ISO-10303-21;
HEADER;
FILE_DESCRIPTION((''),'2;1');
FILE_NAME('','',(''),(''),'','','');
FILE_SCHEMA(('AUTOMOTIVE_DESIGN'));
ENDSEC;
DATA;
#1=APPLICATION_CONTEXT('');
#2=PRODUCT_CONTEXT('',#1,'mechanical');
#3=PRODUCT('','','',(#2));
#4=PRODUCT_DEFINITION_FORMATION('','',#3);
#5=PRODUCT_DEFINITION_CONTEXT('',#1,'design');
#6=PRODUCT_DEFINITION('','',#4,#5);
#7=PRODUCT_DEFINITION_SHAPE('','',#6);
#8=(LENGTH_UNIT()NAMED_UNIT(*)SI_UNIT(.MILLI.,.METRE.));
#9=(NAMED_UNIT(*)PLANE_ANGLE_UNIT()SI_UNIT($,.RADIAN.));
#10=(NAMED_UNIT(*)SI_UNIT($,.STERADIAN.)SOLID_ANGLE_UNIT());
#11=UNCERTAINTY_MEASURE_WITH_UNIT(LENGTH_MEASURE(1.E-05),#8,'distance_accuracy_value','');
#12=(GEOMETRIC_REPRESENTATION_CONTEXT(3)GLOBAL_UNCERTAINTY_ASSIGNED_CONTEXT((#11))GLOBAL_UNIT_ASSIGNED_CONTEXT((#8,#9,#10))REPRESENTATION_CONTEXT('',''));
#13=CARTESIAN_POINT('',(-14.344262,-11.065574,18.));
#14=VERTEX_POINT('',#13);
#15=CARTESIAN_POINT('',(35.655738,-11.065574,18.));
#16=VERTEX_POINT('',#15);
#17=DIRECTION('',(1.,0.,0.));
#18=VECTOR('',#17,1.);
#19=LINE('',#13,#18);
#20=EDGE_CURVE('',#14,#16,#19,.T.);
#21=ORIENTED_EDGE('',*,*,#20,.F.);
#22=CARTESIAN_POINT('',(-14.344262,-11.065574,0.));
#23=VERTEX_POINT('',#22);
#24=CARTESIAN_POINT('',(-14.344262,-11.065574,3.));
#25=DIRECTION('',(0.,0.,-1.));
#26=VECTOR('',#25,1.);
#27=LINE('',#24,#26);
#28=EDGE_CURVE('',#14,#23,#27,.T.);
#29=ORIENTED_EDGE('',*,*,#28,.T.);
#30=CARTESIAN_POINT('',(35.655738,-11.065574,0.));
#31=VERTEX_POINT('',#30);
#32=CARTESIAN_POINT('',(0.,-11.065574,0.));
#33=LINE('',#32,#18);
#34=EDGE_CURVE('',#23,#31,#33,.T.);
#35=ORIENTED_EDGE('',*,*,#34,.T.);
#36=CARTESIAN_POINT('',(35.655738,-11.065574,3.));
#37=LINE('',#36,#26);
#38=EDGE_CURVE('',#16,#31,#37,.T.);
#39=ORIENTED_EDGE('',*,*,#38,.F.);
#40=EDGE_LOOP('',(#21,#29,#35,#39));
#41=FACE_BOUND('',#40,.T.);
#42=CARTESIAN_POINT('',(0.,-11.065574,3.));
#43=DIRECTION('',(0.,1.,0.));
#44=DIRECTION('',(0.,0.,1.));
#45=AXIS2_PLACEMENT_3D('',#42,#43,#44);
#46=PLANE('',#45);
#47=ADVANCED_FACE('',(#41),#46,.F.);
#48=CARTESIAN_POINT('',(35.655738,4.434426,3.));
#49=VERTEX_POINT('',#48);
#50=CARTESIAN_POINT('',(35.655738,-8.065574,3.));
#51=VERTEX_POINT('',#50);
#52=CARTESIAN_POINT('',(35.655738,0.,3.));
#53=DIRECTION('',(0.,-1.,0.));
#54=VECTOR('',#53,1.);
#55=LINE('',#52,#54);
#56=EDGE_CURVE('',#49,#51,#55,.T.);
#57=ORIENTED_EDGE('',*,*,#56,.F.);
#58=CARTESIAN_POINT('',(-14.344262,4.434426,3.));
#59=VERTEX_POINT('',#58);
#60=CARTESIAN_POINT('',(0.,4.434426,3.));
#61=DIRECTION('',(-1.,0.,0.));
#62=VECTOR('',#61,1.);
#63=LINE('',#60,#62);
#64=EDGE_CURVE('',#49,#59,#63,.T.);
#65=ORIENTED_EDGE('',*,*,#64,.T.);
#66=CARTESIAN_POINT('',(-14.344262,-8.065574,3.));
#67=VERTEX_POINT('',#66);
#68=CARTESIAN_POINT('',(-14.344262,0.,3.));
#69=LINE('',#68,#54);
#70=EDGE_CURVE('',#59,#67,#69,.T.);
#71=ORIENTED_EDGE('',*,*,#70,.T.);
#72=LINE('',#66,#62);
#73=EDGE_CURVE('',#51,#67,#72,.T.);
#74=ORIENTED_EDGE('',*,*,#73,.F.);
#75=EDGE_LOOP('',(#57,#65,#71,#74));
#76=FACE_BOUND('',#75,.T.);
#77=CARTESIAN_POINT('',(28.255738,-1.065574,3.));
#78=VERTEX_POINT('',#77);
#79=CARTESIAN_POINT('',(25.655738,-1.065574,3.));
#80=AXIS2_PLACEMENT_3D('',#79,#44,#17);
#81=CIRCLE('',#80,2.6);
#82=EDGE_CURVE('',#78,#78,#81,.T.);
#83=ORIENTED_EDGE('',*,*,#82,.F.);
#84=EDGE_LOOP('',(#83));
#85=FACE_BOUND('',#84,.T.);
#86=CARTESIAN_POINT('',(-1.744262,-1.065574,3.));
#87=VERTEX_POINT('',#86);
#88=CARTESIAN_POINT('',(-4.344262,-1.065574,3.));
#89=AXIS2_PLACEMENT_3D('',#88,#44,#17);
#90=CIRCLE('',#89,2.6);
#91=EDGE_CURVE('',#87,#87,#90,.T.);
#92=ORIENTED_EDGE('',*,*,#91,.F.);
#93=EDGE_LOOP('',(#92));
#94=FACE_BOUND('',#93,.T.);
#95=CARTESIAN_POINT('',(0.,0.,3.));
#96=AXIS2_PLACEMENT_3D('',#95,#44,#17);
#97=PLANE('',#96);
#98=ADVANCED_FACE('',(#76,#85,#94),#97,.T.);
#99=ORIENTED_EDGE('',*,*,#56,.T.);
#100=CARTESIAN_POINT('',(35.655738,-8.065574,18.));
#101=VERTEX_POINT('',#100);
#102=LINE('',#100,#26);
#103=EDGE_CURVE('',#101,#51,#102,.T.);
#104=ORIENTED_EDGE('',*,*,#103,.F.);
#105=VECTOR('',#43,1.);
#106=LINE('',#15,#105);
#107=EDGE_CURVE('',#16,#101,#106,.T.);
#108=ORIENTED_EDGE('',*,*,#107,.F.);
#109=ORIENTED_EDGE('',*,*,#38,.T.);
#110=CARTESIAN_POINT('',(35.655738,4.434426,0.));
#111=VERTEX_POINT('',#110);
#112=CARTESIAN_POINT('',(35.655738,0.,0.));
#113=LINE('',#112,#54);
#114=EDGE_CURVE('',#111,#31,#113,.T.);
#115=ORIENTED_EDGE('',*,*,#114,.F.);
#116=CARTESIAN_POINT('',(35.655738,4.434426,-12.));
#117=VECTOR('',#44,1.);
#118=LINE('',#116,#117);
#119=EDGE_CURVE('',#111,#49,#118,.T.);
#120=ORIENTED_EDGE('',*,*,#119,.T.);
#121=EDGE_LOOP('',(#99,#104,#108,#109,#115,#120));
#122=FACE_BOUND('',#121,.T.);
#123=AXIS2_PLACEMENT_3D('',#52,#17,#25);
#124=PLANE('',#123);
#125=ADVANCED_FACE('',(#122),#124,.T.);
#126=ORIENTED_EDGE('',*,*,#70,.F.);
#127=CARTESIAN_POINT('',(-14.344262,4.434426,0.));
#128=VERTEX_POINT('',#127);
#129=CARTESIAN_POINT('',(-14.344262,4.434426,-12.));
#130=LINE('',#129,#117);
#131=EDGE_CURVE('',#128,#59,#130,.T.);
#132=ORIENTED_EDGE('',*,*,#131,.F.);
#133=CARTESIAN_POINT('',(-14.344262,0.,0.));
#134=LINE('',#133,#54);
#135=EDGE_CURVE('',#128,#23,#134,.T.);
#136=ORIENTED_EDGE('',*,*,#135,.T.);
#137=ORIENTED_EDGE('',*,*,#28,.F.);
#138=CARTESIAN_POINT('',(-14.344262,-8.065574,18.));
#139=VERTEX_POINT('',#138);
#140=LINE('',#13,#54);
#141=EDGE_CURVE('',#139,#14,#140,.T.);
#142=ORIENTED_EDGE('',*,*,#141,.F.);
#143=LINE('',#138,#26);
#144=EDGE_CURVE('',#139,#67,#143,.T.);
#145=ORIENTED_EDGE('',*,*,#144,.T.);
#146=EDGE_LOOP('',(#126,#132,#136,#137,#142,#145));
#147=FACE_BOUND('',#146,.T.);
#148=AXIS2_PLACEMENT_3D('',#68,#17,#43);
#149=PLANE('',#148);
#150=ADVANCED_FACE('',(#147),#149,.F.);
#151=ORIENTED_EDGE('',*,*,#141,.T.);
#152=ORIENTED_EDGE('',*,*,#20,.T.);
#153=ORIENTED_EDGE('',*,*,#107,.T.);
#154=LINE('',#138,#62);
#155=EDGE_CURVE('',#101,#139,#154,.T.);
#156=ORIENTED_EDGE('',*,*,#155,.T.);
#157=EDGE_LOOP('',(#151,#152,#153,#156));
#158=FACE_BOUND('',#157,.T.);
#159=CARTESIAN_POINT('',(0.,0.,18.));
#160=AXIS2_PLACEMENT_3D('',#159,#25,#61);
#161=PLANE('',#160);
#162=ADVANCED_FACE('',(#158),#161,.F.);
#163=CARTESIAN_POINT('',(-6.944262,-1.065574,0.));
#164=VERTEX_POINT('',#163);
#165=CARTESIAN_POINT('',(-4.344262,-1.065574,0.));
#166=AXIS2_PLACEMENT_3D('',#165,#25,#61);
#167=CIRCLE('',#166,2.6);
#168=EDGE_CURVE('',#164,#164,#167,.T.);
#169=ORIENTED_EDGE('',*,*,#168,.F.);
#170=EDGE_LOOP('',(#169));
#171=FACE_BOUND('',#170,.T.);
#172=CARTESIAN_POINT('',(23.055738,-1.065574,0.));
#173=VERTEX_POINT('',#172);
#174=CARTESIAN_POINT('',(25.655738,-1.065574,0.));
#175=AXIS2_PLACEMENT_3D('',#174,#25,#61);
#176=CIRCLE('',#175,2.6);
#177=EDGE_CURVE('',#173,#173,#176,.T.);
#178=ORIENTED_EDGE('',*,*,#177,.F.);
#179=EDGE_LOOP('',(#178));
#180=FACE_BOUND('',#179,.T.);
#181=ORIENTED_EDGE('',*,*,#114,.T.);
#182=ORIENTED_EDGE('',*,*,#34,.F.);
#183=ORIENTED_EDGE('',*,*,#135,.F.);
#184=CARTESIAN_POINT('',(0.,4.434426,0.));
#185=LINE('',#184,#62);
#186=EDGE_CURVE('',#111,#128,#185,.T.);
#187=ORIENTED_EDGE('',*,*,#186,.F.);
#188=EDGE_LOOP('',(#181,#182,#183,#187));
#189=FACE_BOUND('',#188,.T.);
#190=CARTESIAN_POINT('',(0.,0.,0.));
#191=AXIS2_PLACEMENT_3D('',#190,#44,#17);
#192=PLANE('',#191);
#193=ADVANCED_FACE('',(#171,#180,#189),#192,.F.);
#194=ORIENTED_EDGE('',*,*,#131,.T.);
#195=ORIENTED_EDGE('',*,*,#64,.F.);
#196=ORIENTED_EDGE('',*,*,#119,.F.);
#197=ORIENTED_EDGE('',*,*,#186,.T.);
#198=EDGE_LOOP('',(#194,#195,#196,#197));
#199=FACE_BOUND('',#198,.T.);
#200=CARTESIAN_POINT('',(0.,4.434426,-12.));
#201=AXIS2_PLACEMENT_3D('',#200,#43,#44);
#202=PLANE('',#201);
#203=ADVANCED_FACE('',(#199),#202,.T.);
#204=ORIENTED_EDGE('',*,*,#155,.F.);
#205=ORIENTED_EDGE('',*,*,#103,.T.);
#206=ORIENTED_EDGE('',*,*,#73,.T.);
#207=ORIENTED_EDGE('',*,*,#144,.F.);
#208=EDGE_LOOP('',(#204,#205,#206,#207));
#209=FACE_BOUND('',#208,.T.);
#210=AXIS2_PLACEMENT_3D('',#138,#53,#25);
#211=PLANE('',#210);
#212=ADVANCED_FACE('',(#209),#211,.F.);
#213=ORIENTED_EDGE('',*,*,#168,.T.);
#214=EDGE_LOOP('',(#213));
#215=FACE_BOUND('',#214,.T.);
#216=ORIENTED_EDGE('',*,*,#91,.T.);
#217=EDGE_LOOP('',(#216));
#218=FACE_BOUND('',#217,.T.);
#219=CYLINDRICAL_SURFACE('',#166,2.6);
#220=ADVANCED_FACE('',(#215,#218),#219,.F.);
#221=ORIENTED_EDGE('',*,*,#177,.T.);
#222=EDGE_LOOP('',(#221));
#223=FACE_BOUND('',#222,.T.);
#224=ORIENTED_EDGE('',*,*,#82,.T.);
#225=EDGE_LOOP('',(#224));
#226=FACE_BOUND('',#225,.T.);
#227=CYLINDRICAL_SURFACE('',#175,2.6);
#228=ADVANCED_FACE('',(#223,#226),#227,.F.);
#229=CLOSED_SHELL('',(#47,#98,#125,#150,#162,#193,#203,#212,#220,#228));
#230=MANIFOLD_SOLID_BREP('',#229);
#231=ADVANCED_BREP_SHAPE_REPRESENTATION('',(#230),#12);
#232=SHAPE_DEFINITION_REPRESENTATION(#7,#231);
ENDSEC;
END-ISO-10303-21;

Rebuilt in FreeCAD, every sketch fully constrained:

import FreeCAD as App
import Part
import Sketcher


def add_polygon(sketch, points):
    """Adds a closed chain of lines whose ends are joined by coincident constraints."""
    first, n = sketch.GeometryCount, len(points)
    for a, b in zip(points, points[1:] + points[:1]):
        sketch.addGeometry(Part.LineSegment(App.Vector(*a, 0), App.Vector(*b, 0)), False)
    for i in range(n):
        sketch.addConstraint(Sketcher.Constraint("Coincident", first + i, 2, first + (i + 1) % n, 1))

doc = App.newDocument("Part")
body = doc.addObject("PartDesign::Body", "Body")

# Sketch on XY plane
sketch1 = body.newObject("Sketcher::SketchObject", "Sketch")
sketch1.AttachmentSupport = (doc.getObject("XY_Plane"), [""])
sketch1.MapMode = "FlatFace"
add_polygon(sketch1, [(-14.344262, 6.934426), (-14.344262, -11.065574), (35.655738, -11.065574), (35.655738, 6.934426)])  # lines 0-3
sketch1.addConstraint([
    Sketcher.Constraint("Vertical", 0),
    Sketcher.Constraint("Horizontal", 1),
    Sketcher.Constraint("Vertical", 2),
    Sketcher.Constraint("Horizontal", 3),
    Sketcher.Constraint("DistanceX", 1, 1, 1, 2, 50.0),
    Sketcher.Constraint("DistanceY", 0, 2, 0, 1, 18.0),
    Sketcher.Constraint("DistanceX", 0, 2, -1, 1, 14.344262),
    Sketcher.Constraint("DistanceY", 0, 2, -1, 1, 11.065574),
])
pad1 = body.newObject("PartDesign::Pad", "Pad")
pad1.Profile = sketch1
pad1.Length = 3

# Sketch on XY plane
sketch2 = body.newObject("Sketcher::SketchObject", "Sketch001")
sketch2.AttachmentSupport = (doc.getObject("XY_Plane"), [""])
sketch2.MapMode = "FlatFace"
sketch2.addGeometry([
    Part.Circle(App.Vector(25.655738, -1.065574, 0), App.Vector(0, 0, 1), 2.6),
    Part.Circle(App.Vector(-4.344262, -1.065574, 0), App.Vector(0, 0, 1), 2.6),
], False)
sketch2.addConstraint([
    Sketcher.Constraint("Equal", 0, 1),
    Sketcher.Constraint("Horizontal", 0, 3, 1, 3),
    Sketcher.Constraint("Diameter", 0, 5.2),
    Sketcher.Constraint("DistanceX", 1, 3, 0, 3, 30.0),
    Sketcher.Constraint("DistanceX", -1, 1, 0, 3, 25.655738),
    Sketcher.Constraint("DistanceY", 0, 3, -1, 1, 1.065574),
])
doc.recompute()
hole = body.newObject("PartDesign::Hole", "Hole")
hole.Profile = sketch2
hole.ThreadType = "None"
hole.Diameter = 5.2
hole.DepthType = "ThroughAll"
hole.Reversed = True

# Sketch on XY plane
sketch3 = body.newObject("Sketcher::SketchObject", "Sketch002")
sketch3.AttachmentSupport = (doc.getObject("XY_Plane"), [""])
sketch3.MapMode = "FlatFace"
sketch3.AttachmentOffset = App.Placement(App.Vector(0, 0, 3), App.Rotation())
add_polygon(sketch3, [(-14.344262, -8.065574), (-14.344262, -11.065574), (35.655738, -11.065574), (35.655738, -8.065574)])  # lines 0-3
sketch3.addConstraint([
    Sketcher.Constraint("Vertical", 0),
    Sketcher.Constraint("Horizontal", 1),
    Sketcher.Constraint("Vertical", 2),
    Sketcher.Constraint("Horizontal", 3),
    Sketcher.Constraint("DistanceX", 1, 1, 1, 2, 50.0),
    Sketcher.Constraint("DistanceY", 0, 2, 0, 1, 3.0),
    Sketcher.Constraint("DistanceX", 0, 2, -1, 1, 14.344262),
    Sketcher.Constraint("DistanceY", 0, 2, -1, 1, 11.065574),
])
pad2 = body.newObject("PartDesign::Pad", "Pad001")
pad2.Profile = sketch3
pad2.Length = 15

# Sketch on XY plane
sketch4 = body.newObject("Sketcher::SketchObject", "Sketch003")
sketch4.AttachmentSupport = (doc.getObject("XY_Plane"), [""])
sketch4.MapMode = "FlatFace"
sketch4.AttachmentOffset = App.Placement(App.Vector(0, 0, 3), App.Rotation())
add_polygon(sketch4, [(-14.344262, 6.934426), (-14.344262, 4.434426), (35.655738, 4.434426), (35.655738, 6.934426)])  # lines 0-3
sketch4.addConstraint([
    Sketcher.Constraint("Vertical", 0),
    Sketcher.Constraint("Horizontal", 1),
    Sketcher.Constraint("Vertical", 2),
    Sketcher.Constraint("Horizontal", 3),
    Sketcher.Constraint("DistanceX", 1, 1, 1, 2, 50.0),
    Sketcher.Constraint("DistanceY", 0, 2, 0, 1, 2.5),
    Sketcher.Constraint("DistanceX", 0, 2, -1, 1, 14.344262),
    Sketcher.Constraint("DistanceY", -1, 1, 0, 2, 4.434426),
])
pocket1 = body.newObject("PartDesign::Pocket", "Pocket")
pocket1.Profile = sketch4
pocket1.Length = 15

doc.recompute()
